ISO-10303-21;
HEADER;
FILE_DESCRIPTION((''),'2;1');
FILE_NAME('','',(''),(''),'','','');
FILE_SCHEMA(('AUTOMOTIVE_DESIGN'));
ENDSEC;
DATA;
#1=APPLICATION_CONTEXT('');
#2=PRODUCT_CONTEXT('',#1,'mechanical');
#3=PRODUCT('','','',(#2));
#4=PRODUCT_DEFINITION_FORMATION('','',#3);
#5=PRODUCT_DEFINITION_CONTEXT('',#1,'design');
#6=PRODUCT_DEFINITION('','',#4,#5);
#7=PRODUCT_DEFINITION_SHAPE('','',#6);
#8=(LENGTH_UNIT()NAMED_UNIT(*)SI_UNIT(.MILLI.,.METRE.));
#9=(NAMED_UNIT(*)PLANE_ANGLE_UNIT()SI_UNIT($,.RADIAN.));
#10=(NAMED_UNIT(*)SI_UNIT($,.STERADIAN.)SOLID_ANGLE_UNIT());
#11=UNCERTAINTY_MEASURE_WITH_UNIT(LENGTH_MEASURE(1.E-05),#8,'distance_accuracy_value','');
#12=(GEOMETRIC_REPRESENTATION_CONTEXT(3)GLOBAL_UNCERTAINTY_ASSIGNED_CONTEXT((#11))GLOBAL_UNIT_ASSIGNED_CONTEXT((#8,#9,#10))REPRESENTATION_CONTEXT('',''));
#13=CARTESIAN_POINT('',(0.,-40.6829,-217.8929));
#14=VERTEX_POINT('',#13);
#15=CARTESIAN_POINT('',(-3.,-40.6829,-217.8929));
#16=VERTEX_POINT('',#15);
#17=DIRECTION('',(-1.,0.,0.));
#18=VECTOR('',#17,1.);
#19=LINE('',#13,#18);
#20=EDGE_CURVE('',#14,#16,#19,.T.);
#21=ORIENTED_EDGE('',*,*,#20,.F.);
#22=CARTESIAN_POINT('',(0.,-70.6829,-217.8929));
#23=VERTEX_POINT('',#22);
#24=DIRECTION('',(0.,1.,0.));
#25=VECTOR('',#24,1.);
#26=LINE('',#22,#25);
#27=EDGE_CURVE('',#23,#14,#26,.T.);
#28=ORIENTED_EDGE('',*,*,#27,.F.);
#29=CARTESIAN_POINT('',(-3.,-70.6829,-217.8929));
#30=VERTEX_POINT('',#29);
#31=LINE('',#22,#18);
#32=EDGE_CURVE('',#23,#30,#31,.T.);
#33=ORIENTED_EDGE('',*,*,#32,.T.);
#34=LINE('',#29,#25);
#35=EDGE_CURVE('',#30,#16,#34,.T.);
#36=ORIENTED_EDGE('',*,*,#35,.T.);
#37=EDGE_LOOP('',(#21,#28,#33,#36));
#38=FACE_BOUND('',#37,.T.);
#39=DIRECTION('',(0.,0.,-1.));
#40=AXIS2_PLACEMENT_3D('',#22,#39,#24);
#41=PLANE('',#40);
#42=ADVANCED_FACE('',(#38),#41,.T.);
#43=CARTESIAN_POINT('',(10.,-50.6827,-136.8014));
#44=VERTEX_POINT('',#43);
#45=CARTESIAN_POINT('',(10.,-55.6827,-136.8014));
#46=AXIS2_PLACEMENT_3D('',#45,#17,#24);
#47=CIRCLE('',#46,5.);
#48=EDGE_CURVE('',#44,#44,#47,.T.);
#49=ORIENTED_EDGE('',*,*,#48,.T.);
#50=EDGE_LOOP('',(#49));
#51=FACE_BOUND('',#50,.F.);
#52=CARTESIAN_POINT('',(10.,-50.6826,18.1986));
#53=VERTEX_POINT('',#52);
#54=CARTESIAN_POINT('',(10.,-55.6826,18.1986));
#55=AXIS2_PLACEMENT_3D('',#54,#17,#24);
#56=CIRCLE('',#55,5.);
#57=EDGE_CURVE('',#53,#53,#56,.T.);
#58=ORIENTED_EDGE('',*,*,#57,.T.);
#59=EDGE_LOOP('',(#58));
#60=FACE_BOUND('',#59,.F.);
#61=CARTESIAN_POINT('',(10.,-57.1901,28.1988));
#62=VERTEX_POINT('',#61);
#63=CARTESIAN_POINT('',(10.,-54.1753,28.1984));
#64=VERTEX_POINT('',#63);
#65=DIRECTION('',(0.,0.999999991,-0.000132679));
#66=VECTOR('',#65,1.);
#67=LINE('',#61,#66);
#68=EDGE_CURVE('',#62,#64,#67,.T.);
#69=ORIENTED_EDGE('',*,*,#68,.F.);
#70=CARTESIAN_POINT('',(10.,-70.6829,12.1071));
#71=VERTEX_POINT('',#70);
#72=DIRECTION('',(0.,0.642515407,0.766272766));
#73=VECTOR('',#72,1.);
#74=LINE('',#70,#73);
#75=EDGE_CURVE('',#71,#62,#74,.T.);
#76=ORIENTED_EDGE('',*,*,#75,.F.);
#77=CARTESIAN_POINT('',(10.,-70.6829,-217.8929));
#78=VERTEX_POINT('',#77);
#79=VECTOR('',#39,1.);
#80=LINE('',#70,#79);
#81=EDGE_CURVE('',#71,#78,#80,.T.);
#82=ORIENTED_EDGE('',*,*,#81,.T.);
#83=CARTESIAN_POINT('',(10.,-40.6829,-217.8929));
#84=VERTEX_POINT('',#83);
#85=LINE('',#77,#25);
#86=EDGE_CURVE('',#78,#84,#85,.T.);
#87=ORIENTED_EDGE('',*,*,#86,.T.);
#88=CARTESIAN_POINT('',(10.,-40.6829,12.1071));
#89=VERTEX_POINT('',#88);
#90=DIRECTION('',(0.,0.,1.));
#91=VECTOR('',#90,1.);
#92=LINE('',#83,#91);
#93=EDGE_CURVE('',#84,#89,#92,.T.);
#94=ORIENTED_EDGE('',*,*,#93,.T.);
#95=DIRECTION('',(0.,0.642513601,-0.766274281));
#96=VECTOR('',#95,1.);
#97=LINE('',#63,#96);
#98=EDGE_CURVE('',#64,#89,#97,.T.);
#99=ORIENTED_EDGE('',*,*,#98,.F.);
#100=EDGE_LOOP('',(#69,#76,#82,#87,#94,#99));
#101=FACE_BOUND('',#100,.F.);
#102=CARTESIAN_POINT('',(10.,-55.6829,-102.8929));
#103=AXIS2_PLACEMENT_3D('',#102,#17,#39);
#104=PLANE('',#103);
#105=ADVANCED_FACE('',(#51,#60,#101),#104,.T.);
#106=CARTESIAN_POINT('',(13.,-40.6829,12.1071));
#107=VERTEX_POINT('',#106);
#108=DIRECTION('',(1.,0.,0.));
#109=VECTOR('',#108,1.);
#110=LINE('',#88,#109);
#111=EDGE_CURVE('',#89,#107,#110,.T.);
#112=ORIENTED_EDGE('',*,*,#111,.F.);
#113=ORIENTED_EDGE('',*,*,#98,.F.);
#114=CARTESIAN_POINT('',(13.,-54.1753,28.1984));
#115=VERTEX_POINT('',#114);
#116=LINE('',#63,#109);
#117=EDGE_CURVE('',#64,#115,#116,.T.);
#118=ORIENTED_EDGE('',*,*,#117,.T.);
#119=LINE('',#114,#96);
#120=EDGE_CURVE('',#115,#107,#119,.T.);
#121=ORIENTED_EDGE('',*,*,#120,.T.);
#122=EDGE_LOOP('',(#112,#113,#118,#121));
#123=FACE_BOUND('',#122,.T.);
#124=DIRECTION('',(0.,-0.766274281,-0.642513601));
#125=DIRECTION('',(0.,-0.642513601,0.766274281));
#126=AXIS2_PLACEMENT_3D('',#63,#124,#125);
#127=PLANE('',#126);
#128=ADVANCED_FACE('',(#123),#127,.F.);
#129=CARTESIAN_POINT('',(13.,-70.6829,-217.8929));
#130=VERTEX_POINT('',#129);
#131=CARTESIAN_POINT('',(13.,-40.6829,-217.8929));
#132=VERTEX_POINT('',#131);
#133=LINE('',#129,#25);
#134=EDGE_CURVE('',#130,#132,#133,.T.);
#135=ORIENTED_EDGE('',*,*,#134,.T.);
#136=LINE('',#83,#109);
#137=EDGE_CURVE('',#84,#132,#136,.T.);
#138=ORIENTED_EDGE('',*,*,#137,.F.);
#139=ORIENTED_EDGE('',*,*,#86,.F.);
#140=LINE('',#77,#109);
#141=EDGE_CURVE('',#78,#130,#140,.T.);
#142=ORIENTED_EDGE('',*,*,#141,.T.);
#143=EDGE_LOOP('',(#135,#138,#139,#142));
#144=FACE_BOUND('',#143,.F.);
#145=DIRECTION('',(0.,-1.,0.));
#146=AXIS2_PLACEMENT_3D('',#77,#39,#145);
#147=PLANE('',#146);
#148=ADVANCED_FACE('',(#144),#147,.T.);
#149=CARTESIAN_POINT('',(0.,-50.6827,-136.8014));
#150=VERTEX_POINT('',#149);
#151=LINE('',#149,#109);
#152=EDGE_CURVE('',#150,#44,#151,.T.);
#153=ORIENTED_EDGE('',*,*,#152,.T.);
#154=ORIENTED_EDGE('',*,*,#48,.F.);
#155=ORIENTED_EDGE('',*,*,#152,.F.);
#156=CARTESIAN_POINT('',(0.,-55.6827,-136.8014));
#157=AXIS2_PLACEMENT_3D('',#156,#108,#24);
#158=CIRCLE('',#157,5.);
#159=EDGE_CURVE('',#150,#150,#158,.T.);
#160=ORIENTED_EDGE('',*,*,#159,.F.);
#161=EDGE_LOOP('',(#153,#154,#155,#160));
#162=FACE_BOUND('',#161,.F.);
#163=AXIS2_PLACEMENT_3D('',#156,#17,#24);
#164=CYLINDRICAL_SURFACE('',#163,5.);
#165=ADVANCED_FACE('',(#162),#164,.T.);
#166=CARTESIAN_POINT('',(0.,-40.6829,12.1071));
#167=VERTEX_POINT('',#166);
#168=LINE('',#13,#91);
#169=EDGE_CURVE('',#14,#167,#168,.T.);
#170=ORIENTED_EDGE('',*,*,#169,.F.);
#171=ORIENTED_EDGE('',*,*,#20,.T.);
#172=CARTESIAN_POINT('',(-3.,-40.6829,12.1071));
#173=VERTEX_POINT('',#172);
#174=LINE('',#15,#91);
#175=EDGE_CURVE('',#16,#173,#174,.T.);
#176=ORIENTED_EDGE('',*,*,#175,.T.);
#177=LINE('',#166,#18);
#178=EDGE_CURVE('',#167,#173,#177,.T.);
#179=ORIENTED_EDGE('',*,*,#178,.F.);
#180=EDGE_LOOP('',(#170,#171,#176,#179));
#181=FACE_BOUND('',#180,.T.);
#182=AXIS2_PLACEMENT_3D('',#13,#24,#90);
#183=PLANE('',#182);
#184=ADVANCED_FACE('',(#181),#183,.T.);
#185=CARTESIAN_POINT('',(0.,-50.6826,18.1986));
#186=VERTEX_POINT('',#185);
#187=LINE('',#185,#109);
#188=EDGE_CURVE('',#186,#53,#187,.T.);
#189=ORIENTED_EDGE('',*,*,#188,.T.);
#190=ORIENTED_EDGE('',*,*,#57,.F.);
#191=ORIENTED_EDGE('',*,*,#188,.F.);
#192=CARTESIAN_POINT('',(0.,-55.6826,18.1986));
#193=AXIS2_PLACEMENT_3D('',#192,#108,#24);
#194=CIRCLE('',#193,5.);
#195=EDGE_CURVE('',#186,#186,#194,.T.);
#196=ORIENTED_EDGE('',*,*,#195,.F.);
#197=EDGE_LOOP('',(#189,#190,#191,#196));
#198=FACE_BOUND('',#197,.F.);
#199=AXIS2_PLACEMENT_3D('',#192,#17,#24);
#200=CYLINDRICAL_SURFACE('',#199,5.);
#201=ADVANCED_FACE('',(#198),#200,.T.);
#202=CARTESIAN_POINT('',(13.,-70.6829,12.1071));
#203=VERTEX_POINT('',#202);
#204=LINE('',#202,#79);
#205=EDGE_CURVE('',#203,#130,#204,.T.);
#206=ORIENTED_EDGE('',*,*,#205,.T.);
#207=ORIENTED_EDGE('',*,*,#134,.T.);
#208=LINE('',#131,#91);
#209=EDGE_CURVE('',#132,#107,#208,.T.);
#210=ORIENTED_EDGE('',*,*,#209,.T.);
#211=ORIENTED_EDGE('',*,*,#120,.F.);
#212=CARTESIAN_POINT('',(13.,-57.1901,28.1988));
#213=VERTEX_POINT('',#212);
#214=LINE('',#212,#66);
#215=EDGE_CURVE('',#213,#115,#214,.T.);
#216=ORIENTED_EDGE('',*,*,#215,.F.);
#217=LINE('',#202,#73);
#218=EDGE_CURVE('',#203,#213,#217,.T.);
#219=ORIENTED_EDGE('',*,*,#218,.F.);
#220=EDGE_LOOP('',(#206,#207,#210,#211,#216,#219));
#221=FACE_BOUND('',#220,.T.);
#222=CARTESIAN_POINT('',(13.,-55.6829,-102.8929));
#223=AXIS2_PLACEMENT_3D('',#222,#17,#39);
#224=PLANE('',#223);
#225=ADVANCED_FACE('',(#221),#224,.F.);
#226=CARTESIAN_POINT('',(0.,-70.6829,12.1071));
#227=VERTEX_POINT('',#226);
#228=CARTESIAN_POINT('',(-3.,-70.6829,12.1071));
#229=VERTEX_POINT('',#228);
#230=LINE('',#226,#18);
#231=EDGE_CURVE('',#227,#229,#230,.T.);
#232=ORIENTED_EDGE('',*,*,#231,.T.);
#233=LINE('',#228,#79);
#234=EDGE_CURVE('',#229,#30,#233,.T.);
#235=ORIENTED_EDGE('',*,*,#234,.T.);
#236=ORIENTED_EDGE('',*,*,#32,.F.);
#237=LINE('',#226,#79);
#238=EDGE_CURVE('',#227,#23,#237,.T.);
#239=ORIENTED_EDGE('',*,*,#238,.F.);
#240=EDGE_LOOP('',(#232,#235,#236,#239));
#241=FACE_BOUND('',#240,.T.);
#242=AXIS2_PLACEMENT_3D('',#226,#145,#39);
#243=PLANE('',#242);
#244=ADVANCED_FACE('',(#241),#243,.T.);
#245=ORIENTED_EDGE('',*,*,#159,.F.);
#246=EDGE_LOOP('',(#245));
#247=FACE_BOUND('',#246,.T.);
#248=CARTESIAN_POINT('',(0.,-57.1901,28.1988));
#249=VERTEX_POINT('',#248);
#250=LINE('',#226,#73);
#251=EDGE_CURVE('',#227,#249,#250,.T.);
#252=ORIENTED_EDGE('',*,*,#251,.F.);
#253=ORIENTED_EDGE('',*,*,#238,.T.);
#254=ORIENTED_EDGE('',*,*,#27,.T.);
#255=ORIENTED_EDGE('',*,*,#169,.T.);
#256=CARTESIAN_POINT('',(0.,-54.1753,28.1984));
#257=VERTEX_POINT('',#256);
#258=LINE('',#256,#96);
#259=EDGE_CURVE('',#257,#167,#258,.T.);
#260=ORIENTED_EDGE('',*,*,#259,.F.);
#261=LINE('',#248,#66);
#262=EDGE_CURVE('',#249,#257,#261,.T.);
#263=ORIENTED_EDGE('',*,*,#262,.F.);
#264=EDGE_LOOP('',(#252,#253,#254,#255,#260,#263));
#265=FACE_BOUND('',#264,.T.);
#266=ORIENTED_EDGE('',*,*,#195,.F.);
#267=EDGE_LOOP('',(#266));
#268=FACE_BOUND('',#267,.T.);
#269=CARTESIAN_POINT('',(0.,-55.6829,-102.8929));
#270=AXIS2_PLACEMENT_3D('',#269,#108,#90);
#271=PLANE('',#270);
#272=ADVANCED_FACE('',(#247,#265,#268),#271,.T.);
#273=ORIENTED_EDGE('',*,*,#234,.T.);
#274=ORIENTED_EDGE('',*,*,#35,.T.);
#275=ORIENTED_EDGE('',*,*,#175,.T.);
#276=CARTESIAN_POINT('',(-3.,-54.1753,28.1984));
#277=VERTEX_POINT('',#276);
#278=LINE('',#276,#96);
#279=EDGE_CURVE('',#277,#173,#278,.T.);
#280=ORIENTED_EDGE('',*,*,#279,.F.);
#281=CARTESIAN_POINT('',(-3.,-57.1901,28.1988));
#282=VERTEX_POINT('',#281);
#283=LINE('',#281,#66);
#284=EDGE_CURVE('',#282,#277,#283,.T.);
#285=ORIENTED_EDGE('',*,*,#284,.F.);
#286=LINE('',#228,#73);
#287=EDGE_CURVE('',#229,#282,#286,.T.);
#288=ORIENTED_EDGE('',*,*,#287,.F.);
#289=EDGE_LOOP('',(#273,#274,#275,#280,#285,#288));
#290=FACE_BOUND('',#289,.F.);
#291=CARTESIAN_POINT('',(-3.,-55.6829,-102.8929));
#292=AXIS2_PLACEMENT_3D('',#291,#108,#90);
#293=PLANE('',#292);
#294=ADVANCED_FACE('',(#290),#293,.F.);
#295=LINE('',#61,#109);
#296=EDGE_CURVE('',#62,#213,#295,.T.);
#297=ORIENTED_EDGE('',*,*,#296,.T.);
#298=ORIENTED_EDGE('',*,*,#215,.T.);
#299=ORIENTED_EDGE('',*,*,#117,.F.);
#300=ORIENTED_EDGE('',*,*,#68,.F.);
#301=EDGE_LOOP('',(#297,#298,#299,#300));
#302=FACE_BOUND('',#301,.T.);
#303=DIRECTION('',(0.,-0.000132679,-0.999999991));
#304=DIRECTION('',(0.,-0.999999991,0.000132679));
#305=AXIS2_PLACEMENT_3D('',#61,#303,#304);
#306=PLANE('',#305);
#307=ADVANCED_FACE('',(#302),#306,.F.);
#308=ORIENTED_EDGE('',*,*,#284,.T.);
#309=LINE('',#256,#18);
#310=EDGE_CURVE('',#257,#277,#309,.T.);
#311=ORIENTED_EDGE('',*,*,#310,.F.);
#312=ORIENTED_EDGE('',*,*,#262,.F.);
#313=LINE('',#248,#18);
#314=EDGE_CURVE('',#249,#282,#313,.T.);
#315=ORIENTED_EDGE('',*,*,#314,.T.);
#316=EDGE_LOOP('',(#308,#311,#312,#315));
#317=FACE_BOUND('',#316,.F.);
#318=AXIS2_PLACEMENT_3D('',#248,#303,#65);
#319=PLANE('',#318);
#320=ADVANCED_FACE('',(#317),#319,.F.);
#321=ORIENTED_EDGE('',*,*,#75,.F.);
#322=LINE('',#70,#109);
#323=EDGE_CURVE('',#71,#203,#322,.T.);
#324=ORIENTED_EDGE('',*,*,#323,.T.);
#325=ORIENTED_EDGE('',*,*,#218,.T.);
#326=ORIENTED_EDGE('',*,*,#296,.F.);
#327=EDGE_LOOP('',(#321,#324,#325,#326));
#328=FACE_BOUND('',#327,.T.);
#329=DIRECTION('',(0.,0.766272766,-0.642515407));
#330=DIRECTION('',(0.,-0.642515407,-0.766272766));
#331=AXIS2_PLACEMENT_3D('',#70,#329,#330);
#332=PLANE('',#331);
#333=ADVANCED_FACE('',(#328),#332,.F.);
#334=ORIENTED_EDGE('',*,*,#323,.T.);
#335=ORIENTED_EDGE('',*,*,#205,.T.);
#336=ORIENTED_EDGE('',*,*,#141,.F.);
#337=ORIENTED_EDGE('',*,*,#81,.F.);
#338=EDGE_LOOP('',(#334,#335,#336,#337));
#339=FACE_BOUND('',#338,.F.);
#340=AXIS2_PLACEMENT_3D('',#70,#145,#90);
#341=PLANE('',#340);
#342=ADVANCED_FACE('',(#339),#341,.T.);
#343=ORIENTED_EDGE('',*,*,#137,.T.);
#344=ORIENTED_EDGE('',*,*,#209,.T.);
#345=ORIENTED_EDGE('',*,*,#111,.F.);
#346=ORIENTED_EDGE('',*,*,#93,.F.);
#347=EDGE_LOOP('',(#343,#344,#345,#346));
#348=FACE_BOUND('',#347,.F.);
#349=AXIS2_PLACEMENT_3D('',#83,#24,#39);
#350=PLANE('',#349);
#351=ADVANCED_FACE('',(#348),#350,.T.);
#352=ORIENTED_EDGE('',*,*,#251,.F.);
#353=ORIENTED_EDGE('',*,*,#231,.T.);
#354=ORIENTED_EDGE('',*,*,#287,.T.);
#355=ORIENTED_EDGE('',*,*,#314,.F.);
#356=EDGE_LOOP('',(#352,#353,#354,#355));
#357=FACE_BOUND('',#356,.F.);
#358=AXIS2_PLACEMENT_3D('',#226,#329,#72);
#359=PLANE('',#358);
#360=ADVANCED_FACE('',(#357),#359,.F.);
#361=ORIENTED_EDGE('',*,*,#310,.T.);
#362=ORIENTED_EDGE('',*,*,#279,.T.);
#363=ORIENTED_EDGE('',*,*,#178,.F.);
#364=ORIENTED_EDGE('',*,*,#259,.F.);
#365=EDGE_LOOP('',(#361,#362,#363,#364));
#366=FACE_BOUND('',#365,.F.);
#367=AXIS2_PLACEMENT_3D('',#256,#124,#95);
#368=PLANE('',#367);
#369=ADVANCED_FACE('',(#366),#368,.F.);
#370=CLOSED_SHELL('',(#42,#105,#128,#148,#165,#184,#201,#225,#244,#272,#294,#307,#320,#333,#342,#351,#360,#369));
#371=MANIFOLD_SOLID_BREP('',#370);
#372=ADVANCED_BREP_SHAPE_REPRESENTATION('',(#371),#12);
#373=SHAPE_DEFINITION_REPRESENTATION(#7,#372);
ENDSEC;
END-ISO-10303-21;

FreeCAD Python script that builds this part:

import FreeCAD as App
import Part
import Sketcher

V = App.Vector
Q = App.Units.Quantity


def add_polygon(sketch, points):
    """Adds a closed chain of lines whose ends are joined by coincident constraints."""
    first, n = sketch.GeometryCount, len(points)
    for a, b in zip(points, points[1:] + points[:1]):
        sketch.addGeometry(Part.LineSegment(App.Vector(*a, 0), App.Vector(*b, 0)), False)
    for i in range(n):
        sketch.addConstraint(Sketcher.Constraint("Coincident", first + i, 2, first + (i + 1) % n, 1))

doc = App.newDocument("Part")
body = doc.addObject("PartDesign::Body", "Body")

# Sketch on YZ plane
sketch1 = doc.addObject("Sketcher::SketchObject", "Sketch")
body.addObject(sketch1)
sketch1.AttachmentSupport = (doc.YZ_Plane, [""])
sketch1.MapMode = "FlatFace"
add_polygon(sketch1, [(-70.7, 12.1), (-70.7, -217.9), (-40.7, -217.9), (-40.7, 12.1), (-54.2, 28.2), (-57.2, 28.2)])  # lines 0-5
sketch1.addConstraint([
    Sketcher.Constraint("Vertical", 0),
    Sketcher.Constraint("Horizontal", 1),
    Sketcher.Constraint("Vertical", 2),
    Sketcher.Constraint("Horizontal", 2, 2, 5, 2),
    Sketcher.Constraint("DistanceX", 1, 1, 1, 2, 30.0),
    Sketcher.Constraint("DistanceY", 0, 2, 0, 1, 230.0),
    Sketcher.Constraint("Distance", 5, 21.0),
    Sketcher.Constraint("DistanceX", 0, 2, -1, 1, 70.683),
    Sketcher.Constraint("DistanceX", 3, 2, -1, 1, 54.1753),
    Sketcher.Constraint("Angle", 3, Q("129.9795 deg")),
    Sketcher.Constraint("Angle", 5, Q("-129.9796 deg")),
    Sketcher.Constraint("DistanceY", 0, 2, -1, 1, 217.893),
])
pad1 = doc.addObject("PartDesign::Pad", "Pad")
body.addObject(pad1)
pad1.Profile = sketch1
pad1.Length = 3
pad1.Reversed = True

# Sketch on YZ plane
sketch2 = doc.addObject("Sketcher::SketchObject", "Sketch001")
body.addObject(sketch2)
sketch2.AttachmentSupport = (doc.YZ_Plane, [""])
sketch2.MapMode = "FlatFace"
sketch2.addGeometry([
    Part.Circle(V(-56, -137, 0), V(0, 0, 1), 5),
    Part.Circle(V(-56, 18, 0), V(0, 0, 1), 5),
], False)
sketch2.addConstraint([
    Sketcher.Constraint("Equal", 0, 1),
    Sketcher.Constraint("Vertical", 0, 3, 1, 3),
    Sketcher.Constraint("Diameter", 0, 10.0),
    Sketcher.Constraint("DistanceY", 0, 3, 1, 3, 155.0),
    Sketcher.Constraint("DistanceX", 0, 3, -1, 1, 55.6827),
    Sketcher.Constraint("DistanceY", 0, 3, -1, 1, 136.8014),
])
pad2 = doc.addObject("PartDesign::Pad", "Pad001")
body.addObject(pad2)
pad2.Profile = sketch2
pad2.Length = 11
doc.recompute()

datumplane = doc.addObject("PartDesign::Plane", "DatumPlane")
body.addObject(datumplane)
datumplane.AttachmentSupport = (doc.YZ_Plane, [""])
datumplane.MapMode = "FlatFace"
datumplane.AttachmentOffset = App.Placement(V(0, 0, 5), App.Rotation())
mirrored = doc.addObject("PartDesign::Mirrored", "Mirrored")
body.addObject(mirrored)
mirrored.Originals = [pad1]
mirrored.MirrorPlane = (datumplane, [""])
body.Tip = mirrored

doc.recompute()
